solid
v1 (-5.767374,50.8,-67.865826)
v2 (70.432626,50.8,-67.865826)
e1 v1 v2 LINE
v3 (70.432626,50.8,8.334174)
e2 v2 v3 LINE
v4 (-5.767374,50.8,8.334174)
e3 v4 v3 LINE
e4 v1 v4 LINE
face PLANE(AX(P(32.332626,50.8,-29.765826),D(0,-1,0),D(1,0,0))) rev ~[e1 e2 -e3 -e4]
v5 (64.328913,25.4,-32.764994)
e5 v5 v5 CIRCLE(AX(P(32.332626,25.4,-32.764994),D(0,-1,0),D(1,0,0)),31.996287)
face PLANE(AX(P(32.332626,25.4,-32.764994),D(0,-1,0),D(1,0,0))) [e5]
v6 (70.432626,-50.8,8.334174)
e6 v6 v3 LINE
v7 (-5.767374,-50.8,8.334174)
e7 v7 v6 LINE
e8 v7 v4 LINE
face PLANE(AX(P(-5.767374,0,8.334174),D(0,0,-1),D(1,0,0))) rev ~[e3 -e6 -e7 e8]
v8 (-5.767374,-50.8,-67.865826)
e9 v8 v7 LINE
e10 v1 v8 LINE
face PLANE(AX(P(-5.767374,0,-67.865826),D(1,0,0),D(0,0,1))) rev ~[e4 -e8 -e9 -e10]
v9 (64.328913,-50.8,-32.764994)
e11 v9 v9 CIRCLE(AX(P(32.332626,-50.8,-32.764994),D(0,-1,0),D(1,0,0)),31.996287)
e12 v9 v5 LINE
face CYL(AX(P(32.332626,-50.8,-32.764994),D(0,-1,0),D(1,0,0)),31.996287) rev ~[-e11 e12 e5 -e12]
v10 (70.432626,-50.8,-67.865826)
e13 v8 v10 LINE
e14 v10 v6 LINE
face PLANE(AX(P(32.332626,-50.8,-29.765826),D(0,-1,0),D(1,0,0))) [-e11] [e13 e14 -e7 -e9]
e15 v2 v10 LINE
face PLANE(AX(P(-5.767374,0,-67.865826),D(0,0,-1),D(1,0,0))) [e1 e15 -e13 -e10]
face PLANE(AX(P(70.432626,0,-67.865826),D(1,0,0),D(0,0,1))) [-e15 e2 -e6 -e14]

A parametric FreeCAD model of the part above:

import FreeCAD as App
import Part
import Sketcher
Q = App.Units.Quantity

doc = App.newDocument("Part")
body = doc.addObject("PartDesign::Body", "Body")

sketch1 = body.newObject("Sketcher::SketchObject", "Sketch")
sketch1.AttachmentSupport = (doc.getObject("XZ_Plane"), [""])
sketch1.MapMode = "FlatFace"
sketch1.addGeometry([
    Part.LineSegment(App.Vector(-6, 8, 0), App.Vector(-6, -68, 0)),
    Part.LineSegment(App.Vector(-6, -68, 0), App.Vector(70, -68, 0)),
    Part.LineSegment(App.Vector(70, -68, 0), App.Vector(70, 8, 0)),
    Part.LineSegment(App.Vector(70, 8, 0), App.Vector(-6, 8, 0)),
], False)
sketch1.addConstraint([
    Sketcher.Constraint("Coincident", 0, 2, 1, 1),
    Sketcher.Constraint("Coincident", 1, 2, 2, 1),
    Sketcher.Constraint("Coincident", 2, 2, 3, 1),
    Sketcher.Constraint("Coincident", 3, 2, 0, 1),
    Sketcher.Constraint("Vertical", 0),
    Sketcher.Constraint("Horizontal", 1),
    Sketcher.Constraint("Vertical", 2),
    Sketcher.Constraint("Horizontal", 3),
    Sketcher.Constraint("Equal", 3, 0),
    Sketcher.Constraint("DistanceX", 1, 1, 1, 2, Q("3 in")),
    Sketcher.Constraint("DistanceX", 0, 2, -1, 1, 5.767374),
    Sketcher.Constraint("DistanceY", 0, 2, -1, 1, 67.865826),
])
pad1 = body.newObject("PartDesign::Pad", "Pad")
pad1.Profile = sketch1
pad1.Length = Q("4 in")
pad1.Midplane = True

sketch2 = body.newObject("Sketcher::SketchObject", "Sketch001")
sketch2.AttachmentSupport = (doc.getObject("XZ_Plane"), [""])
sketch2.MapMode = "FlatFace"
sketch2.AttachmentOffset = App.Placement(App.Vector(0, 0, 2 * 25.4), App.Rotation())
sketch2.addGeometry(Part.Circle(App.Vector(32, -33, 0), App.Vector(0, 0, 1), 32), False)
sketch2.addConstraint([
    Sketcher.Constraint("Diameter", 0, 63.992574),
    Sketcher.Constraint("DistanceX", -1, 1, 0, 3, 32.332626),
    Sketcher.Constraint("DistanceY", 0, 3, -1, 1, 32.764994),
])
pocket1 = body.newObject("PartDesign::Pocket", "Pocket")
pocket1.Profile = sketch2
pocket1.Length = Q("3 in")

doc.recompute()
